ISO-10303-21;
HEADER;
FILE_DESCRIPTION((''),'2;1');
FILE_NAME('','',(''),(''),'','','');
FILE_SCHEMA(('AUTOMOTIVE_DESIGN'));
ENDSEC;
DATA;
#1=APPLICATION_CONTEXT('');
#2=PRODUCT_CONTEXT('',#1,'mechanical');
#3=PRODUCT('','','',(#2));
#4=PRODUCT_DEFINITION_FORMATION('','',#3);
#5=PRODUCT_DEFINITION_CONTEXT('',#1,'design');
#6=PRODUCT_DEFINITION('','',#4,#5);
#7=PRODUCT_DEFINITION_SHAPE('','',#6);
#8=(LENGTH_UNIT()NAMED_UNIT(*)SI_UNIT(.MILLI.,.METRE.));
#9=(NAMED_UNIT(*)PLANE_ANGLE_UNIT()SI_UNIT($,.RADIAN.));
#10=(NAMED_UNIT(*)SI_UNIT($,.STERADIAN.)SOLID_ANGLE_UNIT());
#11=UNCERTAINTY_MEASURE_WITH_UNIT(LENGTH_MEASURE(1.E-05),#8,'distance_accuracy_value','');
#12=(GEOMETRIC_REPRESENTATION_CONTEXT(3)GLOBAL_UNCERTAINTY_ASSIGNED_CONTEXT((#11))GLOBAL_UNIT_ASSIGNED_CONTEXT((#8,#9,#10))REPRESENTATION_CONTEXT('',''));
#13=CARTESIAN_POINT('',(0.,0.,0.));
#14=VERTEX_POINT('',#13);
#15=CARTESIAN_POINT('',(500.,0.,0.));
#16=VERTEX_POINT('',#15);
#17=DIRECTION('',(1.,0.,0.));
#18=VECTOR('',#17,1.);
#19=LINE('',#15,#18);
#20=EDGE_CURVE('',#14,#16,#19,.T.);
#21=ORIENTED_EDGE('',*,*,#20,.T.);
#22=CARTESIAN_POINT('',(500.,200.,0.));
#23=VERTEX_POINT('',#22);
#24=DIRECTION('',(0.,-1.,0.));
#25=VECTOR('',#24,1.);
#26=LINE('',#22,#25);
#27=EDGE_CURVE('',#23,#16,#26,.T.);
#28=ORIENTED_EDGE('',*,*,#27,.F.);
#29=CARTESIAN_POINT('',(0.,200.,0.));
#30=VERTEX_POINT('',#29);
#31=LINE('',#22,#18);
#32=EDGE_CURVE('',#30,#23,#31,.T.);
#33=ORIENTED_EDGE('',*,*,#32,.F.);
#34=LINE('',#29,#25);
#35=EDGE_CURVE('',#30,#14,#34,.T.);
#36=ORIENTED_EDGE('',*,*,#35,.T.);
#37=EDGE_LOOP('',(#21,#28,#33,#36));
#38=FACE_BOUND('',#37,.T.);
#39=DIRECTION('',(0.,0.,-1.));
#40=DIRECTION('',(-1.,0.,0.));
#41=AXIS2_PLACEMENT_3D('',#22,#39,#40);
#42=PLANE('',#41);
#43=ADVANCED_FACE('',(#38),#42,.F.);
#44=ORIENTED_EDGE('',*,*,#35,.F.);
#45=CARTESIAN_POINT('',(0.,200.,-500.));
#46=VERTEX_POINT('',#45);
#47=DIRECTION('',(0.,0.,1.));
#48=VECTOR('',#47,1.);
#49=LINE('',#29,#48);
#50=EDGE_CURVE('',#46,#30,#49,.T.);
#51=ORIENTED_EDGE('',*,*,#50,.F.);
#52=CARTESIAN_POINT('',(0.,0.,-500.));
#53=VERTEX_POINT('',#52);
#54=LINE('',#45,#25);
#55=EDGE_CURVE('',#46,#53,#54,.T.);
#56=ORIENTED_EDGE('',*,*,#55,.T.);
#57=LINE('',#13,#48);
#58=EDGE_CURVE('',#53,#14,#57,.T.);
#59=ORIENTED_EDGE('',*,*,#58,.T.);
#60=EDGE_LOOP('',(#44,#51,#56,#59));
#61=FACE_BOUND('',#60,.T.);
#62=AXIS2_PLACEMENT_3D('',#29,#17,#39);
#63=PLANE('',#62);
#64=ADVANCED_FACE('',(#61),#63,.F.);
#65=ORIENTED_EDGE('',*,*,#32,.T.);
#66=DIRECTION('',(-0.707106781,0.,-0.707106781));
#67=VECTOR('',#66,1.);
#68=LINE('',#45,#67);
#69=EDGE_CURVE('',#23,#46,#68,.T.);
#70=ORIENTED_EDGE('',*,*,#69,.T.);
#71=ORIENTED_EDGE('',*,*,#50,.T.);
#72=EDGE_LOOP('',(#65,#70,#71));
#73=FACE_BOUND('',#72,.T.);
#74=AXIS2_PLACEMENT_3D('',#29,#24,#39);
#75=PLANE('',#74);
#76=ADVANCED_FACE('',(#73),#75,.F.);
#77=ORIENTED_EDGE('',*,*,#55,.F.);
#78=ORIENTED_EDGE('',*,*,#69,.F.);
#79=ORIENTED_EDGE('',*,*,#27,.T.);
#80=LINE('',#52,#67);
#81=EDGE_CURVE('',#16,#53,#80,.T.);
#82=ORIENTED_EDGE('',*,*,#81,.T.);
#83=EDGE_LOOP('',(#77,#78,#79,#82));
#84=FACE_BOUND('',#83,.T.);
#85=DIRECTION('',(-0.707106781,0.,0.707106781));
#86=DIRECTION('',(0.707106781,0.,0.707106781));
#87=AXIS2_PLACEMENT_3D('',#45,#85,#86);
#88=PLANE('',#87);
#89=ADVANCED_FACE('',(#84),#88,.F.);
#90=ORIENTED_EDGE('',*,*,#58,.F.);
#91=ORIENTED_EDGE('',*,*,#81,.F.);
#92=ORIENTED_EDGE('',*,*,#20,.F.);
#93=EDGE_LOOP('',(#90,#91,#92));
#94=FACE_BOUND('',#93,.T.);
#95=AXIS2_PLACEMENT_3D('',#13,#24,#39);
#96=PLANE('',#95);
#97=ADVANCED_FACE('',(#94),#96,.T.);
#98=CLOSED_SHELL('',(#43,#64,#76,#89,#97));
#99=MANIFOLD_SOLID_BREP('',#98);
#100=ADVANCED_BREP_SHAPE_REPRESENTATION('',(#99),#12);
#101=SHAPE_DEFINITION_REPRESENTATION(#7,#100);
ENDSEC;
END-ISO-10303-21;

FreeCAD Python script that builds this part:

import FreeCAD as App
import Part
import Sketcher
from FreeCAD import Vector
Q = App.Units.Quantity

doc = App.newDocument("Part")
body = doc.addObject("PartDesign::Body", "Body")

# Sketch on XZ plane
sketch1 = body.newObject("Sketcher::SketchObject", "Sketch")
sketch1.AttachmentSupport = (doc.getObject("XZ_Plane"), [""])
sketch1.MapMode = "FlatFace"
sketch1.addGeometry([
    Part.LineSegment(Vector(0, -500, 0), Vector(0, 0, 0)),
    Part.LineSegment(Vector(0, 0, 0), Vector(500, 0, 0)),
    Part.LineSegment(Vector(500, 0, 0), Vector(0, -500, 0)),
], False)
sketch1.addConstraint([
    Sketcher.Constraint("Coincident", 0, 2, 1, 1),
    Sketcher.Constraint("Coincident", 1, 2, 2, 1),
    Sketcher.Constraint("Coincident", 2, 2, 0, 1),
    Sketcher.Constraint("Vertical", 0),
    Sketcher.Constraint("Horizontal", 1),
    Sketcher.Constraint("Coincident", 0, 2, -1, 1),
    Sketcher.Constraint("Equal", 1, 0),
    Sketcher.Constraint("DistanceX", 1, 1, 1, 2, Q("500 mm")),
])
pad1 = body.newObject("PartDesign::Pad", "Pad")
pad1.Profile = sketch1
pad1.Length = 200
pad1.Reversed = True

doc.recompute()
